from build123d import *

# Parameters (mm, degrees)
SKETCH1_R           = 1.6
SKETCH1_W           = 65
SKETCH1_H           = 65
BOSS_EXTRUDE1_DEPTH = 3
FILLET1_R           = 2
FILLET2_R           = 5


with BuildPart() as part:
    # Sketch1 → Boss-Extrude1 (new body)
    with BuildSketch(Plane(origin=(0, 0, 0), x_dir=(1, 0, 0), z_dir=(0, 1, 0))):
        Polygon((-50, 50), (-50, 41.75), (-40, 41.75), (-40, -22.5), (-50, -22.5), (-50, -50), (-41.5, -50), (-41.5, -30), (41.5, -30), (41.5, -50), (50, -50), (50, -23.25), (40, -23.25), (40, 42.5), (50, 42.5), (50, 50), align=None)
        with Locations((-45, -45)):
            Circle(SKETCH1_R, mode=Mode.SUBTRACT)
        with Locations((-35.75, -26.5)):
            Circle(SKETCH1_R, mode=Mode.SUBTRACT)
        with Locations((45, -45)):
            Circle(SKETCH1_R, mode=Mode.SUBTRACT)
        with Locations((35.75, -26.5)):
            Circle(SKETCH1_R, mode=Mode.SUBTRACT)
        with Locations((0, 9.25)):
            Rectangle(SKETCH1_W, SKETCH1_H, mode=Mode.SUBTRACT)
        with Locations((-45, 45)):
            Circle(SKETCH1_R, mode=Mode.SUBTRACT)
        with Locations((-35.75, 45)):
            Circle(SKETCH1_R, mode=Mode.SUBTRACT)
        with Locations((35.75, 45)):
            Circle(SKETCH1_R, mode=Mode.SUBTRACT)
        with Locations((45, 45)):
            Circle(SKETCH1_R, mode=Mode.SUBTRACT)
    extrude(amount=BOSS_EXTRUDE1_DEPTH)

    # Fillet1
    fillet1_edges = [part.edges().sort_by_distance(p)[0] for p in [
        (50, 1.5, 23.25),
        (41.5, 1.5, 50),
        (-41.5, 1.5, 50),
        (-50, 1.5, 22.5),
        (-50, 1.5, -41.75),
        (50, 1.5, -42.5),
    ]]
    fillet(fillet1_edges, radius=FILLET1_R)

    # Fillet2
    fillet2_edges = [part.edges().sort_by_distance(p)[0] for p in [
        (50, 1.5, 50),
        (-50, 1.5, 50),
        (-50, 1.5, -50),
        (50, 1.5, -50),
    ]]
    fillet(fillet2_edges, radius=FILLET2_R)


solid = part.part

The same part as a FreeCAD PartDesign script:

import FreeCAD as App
import Part
import Sketcher

V = App.Vector


def edges_at(feature, points):
    """Names of the edges that pass closest to the given points."""
    edges = feature.Shape.Edges
    near = lambda p: min(range(len(edges)), key=lambda i: edges[i].distToShape(Part.Vertex(*p))[0])
    return sorted({f"Edge{near(p) + 1}" for p in points})

doc = App.newDocument("Part")
body = doc.addObject("PartDesign::Body", "Body")

sketch1 = body.newObject("Sketcher::SketchObject", "Sketch")
sketch1.AttachmentSupport = (doc.getObject("XZ_Plane"), [""])
sketch1.MapMode = "FlatFace"
sketch1.addGeometry([
    Part.LineSegment(V(-50, -50, 0), V(-50, -41.8, 0)),
    Part.LineSegment(V(-50, -41.8, 0), V(-40, -41.8, 0)),
    Part.LineSegment(V(-40, -41.8, 0), V(-40, 22.5, 0)),
    Part.LineSegment(V(-40, 22.5, 0), V(-50, 22.5, 0)),
    Part.LineSegment(V(-50, 22.5, 0), V(-50, 50, 0)),
    Part.LineSegment(V(-50, 50, 0), V(-41.5, 50, 0)),
    Part.LineSegment(V(-41.5, 50, 0), V(-41.5, 30, 0)),
    Part.LineSegment(V(-41.5, 30, 0), V(41.5, 30, 0)),
    Part.LineSegment(V(41.5, 30, 0), V(41.5, 50, 0)),
    Part.LineSegment(V(41.5, 50, 0), V(50, 50, 0)),
    Part.LineSegment(V(50, 50, 0), V(50, 23.2, 0)),
    Part.LineSegment(V(50, 23.2, 0), V(40, 23.2, 0)),
    Part.LineSegment(V(40, 23.2, 0), V(40, -42.5, 0)),
    Part.LineSegment(V(40, -42.5, 0), V(50, -42.5, 0)),
    Part.LineSegment(V(50, -42.5, 0), V(50, -50, 0)),
    Part.LineSegment(V(50, -50, 0), V(-50, -50, 0)),
    Part.Circle(V(-45, 45, 0), V(0, 0, 1), 1.6),
    Part.Circle(V(-35.8, 26.5, 0), V(0, 0, 1), 1.6),
    Part.Circle(V(45, 45, 0), V(0, 0, 1), 1.6),
    Part.Circle(V(35.8, 26.5, 0), V(0, 0, 1), 1.6),
    Part.Circle(V(-45, -45, 0), V(0, 0, 1), 1.6),
    Part.Circle(V(-35.8, -45, 0), V(0, 0, 1), 1.6),
    Part.LineSegment(V(32.5, 23.2, 0), V(-32.5, 23.2, 0)),
    Part.LineSegment(V(-32.5, 23.2, 0), V(-32.5, -41.8, 0)),
    Part.LineSegment(V(-32.5, -41.8, 0), V(32.5, -41.8, 0)),
    Part.LineSegment(V(32.5, -41.8, 0), V(32.5, 23.2, 0)),
    Part.Circle(V(35.8, -45, 0), V(0, 0, 1), 1.6),
    Part.Circle(V(45, -45, 0), V(0, 0, 1), 1.6),
], False)
sketch1.addConstraint([
    Sketcher.Constraint("Coincident", 0, 2, 1, 1),
    Sketcher.Constraint("Coincident", 1, 2, 2, 1),
    Sketcher.Constraint("Coincident", 2, 2, 3, 1),
    Sketcher.Constraint("Coincident", 3, 2, 4, 1),
    Sketcher.Constraint("Coincident", 4, 2, 5, 1),
    Sketcher.Constraint("Coincident", 5, 2, 6, 1),
    Sketcher.Constraint("Coincident", 6, 2, 7, 1),
    Sketcher.Constraint("Coincident", 7, 2, 8, 1),
    Sketcher.Constraint("Coincident", 8, 2, 9, 1),
    Sketcher.Constraint("Coincident", 9, 2, 10, 1),
    Sketcher.Constraint("Coincident", 10, 2, 11, 1),
    Sketcher.Constraint("Coincident", 11, 2, 12, 1),
    Sketcher.Constraint("Coincident", 12, 2, 13, 1),
    Sketcher.Constraint("Coincident", 13, 2, 14, 1),
    Sketcher.Constraint("Coincident", 14, 2, 15, 1),
    Sketcher.Constraint("Coincident", 15, 2, 0, 1),
    Sketcher.Constraint("Coincident", 22, 2, 23, 1),
    Sketcher.Constraint("Coincident", 23, 2, 24, 1),
    Sketcher.Constraint("Coincident", 24, 2, 25, 1),
    Sketcher.Constraint("Coincident", 25, 2, 22, 1),
    Sketcher.Constraint("Vertical", 0),
    Sketcher.Constraint("Horizontal", 1),
    Sketcher.Constraint("Vertical", 2),
    Sketcher.Constraint("Horizontal", 3),
    Sketcher.Constraint("Vertical", 4),
    Sketcher.Constraint("Horizontal", 5),
    Sketcher.Constraint("Vertical", 6),
    Sketcher.Constraint("Horizontal", 7),
    Sketcher.Constraint("Vertical", 8),
    Sketcher.Constraint("Horizontal", 9),
    Sketcher.Constraint("Vertical", 10),
    Sketcher.Constraint("Horizontal", 11),
    Sketcher.Constraint("Vertical", 12),
    Sketcher.Constraint("Horizontal", 13),
    Sketcher.Constraint("Vertical", 14),
    Sketcher.Constraint("Horizontal", 15),
    Sketcher.Constraint("Horizontal", 22),
    Sketcher.Constraint("Vertical", 23),
    Sketcher.Constraint("Horizontal", 24),
    Sketcher.Constraint("Vertical", 25),
    Sketcher.Constraint("Equal", 16, 17),
    Sketcher.Constraint("Equal", 17, 18),
    Sketcher.Constraint("Equal", 18, 19),
    Sketcher.Constraint("Equal", 19, 20),
    Sketcher.Constraint("Equal", 20, 21),
    Sketcher.Constraint("Equal", 21, 26),
    Sketcher.Constraint("Equal", 26, 27),
    Sketcher.Constraint("Symmetric", 18, 3, 20, 3, -1, 1),
    Sketcher.Constraint("Symmetric", 16, 3, 27, 3, -1, 1),
    Sketcher.Constraint("Symmetric", 4, 2, 14, 2, -1, 1),
    Sketcher.Constraint("Symmetric", 9, 2, 15, 2, -1, 1),
    Sketcher.Constraint("Symmetric", 16, 3, 18, 3, -2),
    Sketcher.Constraint("Symmetric", 17, 3, 19, 3, -2),
    Sketcher.Constraint("Symmetric", 21, 3, 26, 3, -2),
    Sketcher.Constraint("Horizontal", 20, 3, 21, 3),
    Sketcher.Constraint("Horizontal", 11, 2, 22, 2),
    Sketcher.Constraint("Horizontal", 1, 2, 23, 2),
    Sketcher.Constraint("Vertical", 17, 3, 21, 3),
    Sketcher.Constraint("Vertical", 0, 2, 3, 2),
    Sketcher.Constraint("Equal", 5, 9),
    Sketcher.Constraint("Equal", 3, 11),
    Sketcher.Constraint("Equal", 24, 23),
    Sketcher.Constraint("Diameter", 16, 3.2),
    Sketcher.Constraint("DistanceX", 1, 1, 1, 2, 10.0),
    Sketcher.Constraint("DistanceX", 7, 1, 7, 2, 83.0),
    Sketcher.Constraint("DistanceX", 15, 2, 15, 1, 100.0),
    Sketcher.Constraint("DistanceX", 22, 2, 22, 1, 65.0),
    Sketcher.Constraint("DistanceY", 6, 2, 6, 1, 20.0),
    Sketcher.Constraint("DistanceY", 4, 1, 4, 2, 27.5),
    Sketcher.Constraint("DistanceY", 14, 2, 14, 1, 7.5),
    Sketcher.Constraint("DistanceX", 16, 3, -1, 1, 45.0),
    Sketcher.Constraint("DistanceY", -1, 1, 16, 3, 45.0),
    Sketcher.Constraint("DistanceY", -1, 1, 4, 2, 50.0),
    Sketcher.Constraint("DistanceY", 2, 2, 17, 3, 4.0),
    Sketcher.Constraint("DistanceX", 6, 2, 22, 2, 9.0),
    Sketcher.Constraint("DistanceY", 0, 1, 0, 2, 8.25),
    Sketcher.Constraint("DistanceX", 17, 3, 19, 3, 71.5),
])
pad1 = body.newObject("PartDesign::Pad", "Pad")
pad1.Profile = sketch1
pad1.Length = 3
pad1.Reversed = True
doc.recompute()

fillet = body.newObject("PartDesign::Fillet", "Fillet")
fillet.Base = (pad1, edges_at(pad1, [
    (50, 1.5, 23.25),
    (41.5, 1.5, 50),
    (-41.5, 1.5, 50),
    (-50, 1.5, 22.5),
    (-50, 1.5, -41.75),
    (50, 1.5, -42.5),
]))
fillet.Radius = 2
doc.recompute()

fillet2 = body.newObject("PartDesign::Fillet", "Fillet001")
fillet2.Base = (fillet, edges_at(fillet, [
    (50, 1.5, 50),
    (-50, 1.5, 50),
    (-50, 1.5, -50),
    (50, 1.5, -50),
]))
fillet2.Radius = 5

doc.recompute()
